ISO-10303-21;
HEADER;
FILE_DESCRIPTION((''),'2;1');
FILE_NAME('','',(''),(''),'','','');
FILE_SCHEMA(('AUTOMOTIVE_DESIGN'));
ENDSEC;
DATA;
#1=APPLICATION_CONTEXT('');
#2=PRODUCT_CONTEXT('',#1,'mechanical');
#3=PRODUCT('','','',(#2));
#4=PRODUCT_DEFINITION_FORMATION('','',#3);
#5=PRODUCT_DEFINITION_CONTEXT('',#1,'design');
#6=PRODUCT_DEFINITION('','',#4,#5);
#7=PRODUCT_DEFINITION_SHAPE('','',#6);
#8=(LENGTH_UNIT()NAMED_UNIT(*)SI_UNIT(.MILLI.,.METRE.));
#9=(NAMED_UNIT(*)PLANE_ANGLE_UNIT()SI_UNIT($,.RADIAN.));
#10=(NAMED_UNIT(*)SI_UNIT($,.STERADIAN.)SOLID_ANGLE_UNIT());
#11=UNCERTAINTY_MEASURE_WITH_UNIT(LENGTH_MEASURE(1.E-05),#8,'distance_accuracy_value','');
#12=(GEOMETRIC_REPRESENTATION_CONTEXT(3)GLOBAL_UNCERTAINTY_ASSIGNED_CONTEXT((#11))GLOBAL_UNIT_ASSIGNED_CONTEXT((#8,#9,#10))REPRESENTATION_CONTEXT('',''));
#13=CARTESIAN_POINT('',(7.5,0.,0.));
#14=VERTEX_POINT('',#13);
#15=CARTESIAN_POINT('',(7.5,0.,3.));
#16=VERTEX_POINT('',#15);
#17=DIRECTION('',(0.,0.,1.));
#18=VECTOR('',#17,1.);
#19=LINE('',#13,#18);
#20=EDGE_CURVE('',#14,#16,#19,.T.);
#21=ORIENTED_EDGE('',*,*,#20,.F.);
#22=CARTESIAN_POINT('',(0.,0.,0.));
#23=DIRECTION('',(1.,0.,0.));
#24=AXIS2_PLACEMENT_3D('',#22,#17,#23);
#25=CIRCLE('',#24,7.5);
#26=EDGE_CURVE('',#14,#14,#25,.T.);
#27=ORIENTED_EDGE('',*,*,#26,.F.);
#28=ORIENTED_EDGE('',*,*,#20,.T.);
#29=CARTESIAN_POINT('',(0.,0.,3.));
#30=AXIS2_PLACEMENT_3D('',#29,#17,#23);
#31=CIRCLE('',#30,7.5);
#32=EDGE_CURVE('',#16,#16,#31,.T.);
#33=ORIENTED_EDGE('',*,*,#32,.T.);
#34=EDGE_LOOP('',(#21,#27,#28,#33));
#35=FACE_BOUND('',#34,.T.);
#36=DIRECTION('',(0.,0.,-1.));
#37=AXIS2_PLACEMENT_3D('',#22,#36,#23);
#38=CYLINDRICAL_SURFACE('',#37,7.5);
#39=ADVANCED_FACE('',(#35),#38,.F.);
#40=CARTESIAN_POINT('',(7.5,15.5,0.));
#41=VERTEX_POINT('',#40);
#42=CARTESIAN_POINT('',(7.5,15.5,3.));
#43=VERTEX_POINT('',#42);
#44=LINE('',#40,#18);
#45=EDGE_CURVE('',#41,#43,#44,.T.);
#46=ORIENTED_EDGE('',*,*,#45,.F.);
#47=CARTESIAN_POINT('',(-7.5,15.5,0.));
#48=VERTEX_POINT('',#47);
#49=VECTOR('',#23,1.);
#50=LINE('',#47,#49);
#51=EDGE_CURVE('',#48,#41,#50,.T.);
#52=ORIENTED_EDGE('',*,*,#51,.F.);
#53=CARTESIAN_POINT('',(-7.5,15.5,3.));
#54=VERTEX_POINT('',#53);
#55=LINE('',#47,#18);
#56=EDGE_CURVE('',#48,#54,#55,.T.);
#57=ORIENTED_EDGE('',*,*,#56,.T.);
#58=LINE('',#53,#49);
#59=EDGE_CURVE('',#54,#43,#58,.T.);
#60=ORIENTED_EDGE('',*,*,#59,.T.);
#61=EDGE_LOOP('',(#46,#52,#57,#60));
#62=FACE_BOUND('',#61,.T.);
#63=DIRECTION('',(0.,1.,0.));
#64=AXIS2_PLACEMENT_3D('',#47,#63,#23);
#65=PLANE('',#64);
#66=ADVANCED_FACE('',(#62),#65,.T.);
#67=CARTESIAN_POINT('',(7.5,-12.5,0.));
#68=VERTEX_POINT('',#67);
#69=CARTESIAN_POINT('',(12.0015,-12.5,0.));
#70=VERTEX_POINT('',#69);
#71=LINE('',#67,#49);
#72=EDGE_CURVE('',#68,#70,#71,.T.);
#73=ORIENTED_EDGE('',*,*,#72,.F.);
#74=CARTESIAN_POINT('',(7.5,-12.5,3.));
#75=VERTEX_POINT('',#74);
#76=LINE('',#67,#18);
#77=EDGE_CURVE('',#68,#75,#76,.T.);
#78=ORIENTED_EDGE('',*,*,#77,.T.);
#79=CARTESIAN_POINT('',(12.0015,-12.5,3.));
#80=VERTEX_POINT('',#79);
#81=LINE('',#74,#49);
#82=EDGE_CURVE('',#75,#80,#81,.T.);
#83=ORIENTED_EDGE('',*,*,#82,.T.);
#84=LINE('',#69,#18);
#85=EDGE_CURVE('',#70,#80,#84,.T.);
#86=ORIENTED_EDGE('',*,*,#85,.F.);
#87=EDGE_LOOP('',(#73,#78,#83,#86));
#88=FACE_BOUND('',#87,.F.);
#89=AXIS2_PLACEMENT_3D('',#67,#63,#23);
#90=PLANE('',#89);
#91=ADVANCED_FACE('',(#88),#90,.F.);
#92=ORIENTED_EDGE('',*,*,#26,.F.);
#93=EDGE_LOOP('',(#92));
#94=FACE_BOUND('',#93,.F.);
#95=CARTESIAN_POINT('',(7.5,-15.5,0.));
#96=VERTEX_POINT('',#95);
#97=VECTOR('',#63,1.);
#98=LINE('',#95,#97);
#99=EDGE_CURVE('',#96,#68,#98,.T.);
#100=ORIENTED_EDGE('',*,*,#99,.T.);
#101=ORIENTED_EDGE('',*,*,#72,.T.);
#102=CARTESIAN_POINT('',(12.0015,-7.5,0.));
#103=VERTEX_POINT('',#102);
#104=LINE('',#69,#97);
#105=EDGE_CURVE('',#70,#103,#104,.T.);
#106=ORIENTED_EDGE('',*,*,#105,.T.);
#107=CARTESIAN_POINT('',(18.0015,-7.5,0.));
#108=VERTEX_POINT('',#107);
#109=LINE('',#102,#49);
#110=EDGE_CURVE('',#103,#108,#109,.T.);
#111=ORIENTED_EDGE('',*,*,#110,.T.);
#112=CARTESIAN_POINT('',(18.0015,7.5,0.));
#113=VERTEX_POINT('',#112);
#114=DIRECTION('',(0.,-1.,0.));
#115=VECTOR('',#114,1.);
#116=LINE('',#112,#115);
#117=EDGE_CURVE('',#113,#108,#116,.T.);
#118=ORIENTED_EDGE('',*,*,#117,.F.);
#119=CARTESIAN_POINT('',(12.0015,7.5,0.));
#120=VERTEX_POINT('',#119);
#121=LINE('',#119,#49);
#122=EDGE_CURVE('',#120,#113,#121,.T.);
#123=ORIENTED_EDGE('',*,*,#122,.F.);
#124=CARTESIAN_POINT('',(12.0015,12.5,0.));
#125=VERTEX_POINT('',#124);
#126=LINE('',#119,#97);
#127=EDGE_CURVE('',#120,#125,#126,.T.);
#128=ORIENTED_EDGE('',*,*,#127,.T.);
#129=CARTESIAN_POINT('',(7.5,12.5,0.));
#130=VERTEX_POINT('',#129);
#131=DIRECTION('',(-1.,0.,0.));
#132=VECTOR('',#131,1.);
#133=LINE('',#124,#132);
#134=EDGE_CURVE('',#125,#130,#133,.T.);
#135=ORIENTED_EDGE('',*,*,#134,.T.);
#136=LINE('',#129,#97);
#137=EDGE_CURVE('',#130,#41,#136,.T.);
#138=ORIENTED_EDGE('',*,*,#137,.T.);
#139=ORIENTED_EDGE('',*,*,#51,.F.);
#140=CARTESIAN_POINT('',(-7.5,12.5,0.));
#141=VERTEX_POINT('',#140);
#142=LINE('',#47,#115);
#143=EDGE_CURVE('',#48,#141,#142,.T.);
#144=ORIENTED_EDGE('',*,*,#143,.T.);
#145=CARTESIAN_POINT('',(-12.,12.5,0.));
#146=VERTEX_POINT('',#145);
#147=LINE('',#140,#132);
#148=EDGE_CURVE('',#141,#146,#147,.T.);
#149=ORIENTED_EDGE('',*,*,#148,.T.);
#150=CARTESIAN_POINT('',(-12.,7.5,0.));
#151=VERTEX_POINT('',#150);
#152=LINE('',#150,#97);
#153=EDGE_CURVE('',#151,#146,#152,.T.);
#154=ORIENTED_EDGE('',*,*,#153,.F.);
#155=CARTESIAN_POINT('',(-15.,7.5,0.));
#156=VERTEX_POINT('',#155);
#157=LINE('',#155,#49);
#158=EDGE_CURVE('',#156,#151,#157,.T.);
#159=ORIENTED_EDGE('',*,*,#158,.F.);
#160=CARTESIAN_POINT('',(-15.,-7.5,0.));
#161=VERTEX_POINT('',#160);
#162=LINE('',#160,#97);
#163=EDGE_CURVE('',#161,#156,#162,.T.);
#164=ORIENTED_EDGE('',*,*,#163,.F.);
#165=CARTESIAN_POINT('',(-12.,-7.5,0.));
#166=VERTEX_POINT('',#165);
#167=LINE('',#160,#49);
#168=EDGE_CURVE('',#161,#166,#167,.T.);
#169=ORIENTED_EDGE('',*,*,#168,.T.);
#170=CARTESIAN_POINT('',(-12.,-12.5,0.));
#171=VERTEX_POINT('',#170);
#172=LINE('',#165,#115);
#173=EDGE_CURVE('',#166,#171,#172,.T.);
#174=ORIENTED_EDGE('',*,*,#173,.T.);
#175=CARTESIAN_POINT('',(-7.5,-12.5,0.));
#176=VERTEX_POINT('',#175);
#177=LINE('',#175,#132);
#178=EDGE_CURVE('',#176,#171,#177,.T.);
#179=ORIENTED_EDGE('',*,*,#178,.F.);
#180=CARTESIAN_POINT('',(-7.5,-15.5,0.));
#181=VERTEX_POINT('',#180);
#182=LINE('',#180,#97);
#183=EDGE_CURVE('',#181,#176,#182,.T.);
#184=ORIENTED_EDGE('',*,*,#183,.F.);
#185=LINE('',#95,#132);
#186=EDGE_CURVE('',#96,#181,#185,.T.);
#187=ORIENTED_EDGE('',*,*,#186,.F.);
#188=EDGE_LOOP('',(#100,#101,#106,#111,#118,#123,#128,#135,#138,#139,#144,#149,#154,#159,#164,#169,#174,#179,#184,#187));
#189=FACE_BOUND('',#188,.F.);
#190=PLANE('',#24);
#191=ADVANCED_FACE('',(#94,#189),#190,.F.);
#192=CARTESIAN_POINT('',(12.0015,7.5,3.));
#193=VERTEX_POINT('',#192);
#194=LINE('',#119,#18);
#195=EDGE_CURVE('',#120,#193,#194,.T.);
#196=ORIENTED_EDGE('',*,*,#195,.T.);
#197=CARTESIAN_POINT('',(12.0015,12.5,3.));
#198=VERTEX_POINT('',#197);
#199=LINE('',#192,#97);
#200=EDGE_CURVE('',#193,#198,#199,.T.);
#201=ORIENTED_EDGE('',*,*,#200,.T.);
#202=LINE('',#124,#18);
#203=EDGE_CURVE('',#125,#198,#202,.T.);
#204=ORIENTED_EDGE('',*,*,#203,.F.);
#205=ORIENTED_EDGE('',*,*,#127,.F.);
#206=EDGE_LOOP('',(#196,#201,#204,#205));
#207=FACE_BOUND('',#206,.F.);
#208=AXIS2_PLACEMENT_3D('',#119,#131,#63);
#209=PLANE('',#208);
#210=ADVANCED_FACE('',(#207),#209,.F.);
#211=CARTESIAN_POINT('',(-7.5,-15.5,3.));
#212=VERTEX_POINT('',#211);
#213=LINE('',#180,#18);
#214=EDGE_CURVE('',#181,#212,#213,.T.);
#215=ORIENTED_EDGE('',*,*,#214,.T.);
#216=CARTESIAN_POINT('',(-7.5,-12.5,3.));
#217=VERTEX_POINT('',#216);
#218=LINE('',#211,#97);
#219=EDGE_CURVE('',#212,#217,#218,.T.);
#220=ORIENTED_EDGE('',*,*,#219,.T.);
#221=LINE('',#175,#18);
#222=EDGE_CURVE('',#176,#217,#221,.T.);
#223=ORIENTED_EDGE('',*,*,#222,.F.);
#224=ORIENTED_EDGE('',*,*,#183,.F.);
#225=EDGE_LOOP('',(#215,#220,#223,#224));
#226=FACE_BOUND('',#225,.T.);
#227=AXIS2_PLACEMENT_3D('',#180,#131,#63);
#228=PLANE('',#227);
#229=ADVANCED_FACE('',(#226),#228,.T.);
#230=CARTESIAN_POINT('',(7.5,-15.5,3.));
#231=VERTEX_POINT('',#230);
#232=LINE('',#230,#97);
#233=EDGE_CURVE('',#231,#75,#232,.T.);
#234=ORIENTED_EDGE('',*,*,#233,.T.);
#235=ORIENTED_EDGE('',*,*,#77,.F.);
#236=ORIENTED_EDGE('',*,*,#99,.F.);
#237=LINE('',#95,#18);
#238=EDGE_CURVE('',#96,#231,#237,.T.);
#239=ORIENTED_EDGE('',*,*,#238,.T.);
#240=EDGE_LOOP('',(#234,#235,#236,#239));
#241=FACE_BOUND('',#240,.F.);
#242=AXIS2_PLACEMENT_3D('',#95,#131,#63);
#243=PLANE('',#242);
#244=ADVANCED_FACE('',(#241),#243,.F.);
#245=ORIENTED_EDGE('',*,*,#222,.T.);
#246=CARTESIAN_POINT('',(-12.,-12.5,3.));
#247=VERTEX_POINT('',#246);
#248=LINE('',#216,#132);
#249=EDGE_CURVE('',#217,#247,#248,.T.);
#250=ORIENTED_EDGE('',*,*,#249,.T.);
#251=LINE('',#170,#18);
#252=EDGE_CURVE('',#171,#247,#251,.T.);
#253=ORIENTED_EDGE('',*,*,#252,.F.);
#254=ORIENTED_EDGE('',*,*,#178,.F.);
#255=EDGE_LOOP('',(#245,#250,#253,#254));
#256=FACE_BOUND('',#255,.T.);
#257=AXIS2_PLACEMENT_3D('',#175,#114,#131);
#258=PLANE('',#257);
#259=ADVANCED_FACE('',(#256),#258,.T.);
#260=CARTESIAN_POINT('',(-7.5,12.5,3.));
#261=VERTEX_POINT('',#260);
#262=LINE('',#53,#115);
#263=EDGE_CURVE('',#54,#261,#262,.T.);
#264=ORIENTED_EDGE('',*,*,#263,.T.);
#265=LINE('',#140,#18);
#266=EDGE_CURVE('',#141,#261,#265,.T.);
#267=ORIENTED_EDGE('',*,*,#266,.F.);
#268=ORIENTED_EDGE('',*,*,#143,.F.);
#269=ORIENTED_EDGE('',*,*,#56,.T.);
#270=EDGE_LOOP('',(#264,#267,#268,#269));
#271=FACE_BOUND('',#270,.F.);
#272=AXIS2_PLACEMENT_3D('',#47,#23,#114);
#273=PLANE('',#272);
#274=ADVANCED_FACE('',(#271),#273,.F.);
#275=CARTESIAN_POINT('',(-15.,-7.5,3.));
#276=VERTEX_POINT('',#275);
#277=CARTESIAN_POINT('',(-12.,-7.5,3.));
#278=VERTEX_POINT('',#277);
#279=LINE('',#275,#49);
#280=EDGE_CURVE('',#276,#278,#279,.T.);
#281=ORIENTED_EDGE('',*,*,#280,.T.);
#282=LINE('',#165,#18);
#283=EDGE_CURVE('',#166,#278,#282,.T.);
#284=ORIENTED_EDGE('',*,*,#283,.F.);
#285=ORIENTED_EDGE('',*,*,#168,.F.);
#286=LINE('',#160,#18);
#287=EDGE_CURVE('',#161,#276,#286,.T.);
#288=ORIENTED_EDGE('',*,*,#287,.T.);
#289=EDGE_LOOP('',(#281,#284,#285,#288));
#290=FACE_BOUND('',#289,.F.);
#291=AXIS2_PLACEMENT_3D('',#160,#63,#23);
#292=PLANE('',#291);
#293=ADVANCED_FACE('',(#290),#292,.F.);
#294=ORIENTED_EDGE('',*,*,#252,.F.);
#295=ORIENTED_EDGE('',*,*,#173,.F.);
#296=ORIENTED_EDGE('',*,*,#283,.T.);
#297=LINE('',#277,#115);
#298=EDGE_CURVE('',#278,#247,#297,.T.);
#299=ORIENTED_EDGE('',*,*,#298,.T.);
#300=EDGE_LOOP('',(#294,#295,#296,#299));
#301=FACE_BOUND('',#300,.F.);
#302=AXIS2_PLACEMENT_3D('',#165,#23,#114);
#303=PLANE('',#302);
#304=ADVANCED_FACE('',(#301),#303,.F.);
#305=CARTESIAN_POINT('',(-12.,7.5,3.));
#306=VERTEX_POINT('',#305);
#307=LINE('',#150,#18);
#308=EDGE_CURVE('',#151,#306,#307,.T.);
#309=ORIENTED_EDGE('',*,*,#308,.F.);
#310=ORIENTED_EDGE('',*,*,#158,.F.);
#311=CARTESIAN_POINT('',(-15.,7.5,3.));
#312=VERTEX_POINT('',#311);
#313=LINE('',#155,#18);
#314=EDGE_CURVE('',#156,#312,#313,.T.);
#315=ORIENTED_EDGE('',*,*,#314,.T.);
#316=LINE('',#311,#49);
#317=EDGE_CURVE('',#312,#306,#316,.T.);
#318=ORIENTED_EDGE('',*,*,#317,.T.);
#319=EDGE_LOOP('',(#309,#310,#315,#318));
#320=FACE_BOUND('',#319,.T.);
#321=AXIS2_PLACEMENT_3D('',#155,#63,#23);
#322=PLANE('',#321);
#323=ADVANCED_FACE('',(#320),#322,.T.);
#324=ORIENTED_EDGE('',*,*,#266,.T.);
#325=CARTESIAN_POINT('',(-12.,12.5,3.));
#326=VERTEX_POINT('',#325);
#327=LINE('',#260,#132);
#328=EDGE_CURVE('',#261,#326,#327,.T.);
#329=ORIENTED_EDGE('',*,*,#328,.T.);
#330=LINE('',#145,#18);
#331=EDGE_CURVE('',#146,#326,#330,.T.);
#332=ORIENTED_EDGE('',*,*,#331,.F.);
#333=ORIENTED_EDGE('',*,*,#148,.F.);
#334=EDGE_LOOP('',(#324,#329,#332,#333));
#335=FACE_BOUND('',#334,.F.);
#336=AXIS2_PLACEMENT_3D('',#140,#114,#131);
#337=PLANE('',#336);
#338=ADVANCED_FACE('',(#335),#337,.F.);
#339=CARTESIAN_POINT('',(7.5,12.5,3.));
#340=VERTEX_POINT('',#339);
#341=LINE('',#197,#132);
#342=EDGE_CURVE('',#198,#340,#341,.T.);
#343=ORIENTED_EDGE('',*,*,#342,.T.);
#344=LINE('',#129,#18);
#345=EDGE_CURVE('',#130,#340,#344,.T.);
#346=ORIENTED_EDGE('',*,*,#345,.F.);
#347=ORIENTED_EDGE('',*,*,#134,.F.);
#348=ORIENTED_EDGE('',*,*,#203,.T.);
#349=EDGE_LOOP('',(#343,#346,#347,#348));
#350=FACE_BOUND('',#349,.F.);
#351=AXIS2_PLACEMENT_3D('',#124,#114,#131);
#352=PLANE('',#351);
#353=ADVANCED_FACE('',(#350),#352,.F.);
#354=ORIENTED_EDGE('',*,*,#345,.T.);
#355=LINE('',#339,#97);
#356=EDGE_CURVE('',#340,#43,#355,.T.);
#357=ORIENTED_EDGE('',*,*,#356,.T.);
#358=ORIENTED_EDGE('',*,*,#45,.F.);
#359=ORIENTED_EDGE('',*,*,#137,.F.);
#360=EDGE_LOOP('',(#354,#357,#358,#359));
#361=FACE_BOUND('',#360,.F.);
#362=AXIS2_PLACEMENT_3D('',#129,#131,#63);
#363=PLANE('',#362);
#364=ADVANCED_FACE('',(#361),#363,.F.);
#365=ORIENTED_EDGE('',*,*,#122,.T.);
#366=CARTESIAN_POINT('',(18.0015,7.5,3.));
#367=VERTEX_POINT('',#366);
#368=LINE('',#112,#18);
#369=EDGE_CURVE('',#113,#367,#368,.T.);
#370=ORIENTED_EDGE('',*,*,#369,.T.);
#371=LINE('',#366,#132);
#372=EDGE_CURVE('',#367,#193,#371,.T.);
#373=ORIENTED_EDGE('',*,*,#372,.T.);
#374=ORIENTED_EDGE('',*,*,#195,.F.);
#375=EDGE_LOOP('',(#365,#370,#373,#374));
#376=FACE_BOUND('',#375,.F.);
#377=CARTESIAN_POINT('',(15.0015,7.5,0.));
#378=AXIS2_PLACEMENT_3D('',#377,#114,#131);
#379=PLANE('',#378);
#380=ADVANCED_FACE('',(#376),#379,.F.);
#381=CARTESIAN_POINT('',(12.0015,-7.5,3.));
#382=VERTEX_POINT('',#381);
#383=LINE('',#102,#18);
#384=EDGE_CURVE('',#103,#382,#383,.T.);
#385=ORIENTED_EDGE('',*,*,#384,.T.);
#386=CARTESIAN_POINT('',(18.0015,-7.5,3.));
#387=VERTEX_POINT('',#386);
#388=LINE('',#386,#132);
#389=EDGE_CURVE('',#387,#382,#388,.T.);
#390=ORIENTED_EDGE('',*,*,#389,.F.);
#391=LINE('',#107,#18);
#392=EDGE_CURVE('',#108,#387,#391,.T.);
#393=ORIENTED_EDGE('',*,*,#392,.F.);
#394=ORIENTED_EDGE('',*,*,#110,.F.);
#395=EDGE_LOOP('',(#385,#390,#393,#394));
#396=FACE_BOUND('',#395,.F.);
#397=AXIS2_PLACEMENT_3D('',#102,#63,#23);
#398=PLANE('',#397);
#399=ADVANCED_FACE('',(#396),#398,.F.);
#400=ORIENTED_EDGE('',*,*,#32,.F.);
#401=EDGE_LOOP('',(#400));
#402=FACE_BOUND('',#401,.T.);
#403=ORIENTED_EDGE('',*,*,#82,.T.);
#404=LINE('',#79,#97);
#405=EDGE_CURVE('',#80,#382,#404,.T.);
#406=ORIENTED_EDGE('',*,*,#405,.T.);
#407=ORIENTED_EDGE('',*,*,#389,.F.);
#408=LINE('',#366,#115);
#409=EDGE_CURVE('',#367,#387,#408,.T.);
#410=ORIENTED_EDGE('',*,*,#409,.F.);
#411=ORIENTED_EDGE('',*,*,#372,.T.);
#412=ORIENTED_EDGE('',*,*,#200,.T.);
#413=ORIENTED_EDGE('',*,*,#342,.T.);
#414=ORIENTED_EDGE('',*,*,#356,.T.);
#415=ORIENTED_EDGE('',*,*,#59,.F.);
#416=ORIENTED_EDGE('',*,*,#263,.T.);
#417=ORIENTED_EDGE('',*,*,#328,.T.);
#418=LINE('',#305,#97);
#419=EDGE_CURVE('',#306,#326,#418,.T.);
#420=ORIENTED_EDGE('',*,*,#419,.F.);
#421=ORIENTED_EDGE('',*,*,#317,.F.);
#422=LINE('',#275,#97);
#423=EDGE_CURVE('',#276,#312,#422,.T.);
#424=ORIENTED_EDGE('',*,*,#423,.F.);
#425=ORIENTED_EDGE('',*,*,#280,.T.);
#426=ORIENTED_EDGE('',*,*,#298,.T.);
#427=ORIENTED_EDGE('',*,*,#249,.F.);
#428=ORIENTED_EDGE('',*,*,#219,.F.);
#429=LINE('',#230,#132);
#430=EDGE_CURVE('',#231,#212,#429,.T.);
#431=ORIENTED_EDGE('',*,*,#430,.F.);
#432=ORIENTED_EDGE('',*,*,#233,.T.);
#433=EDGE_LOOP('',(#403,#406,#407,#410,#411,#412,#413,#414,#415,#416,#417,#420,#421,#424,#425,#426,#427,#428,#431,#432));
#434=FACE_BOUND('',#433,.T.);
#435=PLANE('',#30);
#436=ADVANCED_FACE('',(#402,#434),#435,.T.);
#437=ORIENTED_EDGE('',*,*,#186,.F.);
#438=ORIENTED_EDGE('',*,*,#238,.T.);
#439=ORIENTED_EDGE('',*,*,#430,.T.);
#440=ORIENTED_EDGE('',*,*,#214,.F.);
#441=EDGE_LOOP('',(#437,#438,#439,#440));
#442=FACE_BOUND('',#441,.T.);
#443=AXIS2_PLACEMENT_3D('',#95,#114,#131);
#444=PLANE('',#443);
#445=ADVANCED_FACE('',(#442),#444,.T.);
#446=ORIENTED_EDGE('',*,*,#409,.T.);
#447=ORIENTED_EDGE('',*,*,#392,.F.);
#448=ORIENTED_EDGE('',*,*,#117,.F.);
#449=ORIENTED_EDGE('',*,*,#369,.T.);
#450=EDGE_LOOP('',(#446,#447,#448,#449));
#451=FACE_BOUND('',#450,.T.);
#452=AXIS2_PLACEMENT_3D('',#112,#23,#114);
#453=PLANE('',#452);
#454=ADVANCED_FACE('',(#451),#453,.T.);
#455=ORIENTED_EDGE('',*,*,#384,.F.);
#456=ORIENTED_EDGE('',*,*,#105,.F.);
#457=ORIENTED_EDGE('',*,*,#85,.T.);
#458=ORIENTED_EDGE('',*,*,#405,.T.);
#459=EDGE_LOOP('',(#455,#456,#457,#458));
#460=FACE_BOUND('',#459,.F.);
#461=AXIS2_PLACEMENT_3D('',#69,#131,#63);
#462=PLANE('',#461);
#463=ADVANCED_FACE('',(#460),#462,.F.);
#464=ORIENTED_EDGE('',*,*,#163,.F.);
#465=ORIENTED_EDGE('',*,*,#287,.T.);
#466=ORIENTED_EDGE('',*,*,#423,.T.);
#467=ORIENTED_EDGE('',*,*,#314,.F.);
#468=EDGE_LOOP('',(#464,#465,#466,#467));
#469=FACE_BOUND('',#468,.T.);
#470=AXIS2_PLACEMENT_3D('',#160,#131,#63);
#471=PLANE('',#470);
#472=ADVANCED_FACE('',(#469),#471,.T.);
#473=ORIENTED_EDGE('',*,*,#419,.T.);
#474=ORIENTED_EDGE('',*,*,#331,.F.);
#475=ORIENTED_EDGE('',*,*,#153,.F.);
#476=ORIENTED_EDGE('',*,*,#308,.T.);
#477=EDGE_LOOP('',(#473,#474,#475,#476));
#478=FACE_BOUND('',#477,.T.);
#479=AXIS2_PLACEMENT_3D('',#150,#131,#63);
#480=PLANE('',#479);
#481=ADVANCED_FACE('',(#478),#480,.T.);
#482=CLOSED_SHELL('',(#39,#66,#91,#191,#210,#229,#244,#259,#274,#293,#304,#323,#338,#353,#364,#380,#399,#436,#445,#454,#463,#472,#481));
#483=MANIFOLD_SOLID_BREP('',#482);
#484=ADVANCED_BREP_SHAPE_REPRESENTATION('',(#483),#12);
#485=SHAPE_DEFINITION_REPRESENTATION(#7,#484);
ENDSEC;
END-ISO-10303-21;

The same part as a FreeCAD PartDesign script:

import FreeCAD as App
import Part
import Sketcher

V = App.Vector
Q = App.Units.Quantity


def add_polygon(sketch, points):
    """Adds a closed chain of lines whose ends are joined by coincident constraints."""
    first, n = sketch.GeometryCount, len(points)
    for a, b in zip(points, points[1:] + points[:1]):
        sketch.addGeometry(Part.LineSegment(App.Vector(*a, 0), App.Vector(*b, 0)), False)
    for i in range(n):
        sketch.addConstraint(Sketcher.Constraint("Coincident", first + i, 2, first + (i + 1) % n, 1))

doc = App.newDocument("Part")
body = doc.addObject("PartDesign::Body", "Body")

sketch1 = doc.addObject("Sketcher::SketchObject", "Sketch")
body.addObject(sketch1)
sketch1.AttachmentSupport = (doc.XY_Plane, [""])
sketch1.MapMode = "FlatFace"
add_polygon(sketch1, [(12, -7.5), (18, -7.5), (18, 7.5), (12, 7.5), (12, 12.5), (7.5, 12.5), (7.5, 15.5), (-7.5, 15.5), (-7.5, 12.5), (-12, 12.5), (-12, 7.5), (-15, 7.5), (-15, -7.5), (-12, -7.5), (-12, -12.5), (-7.5, -12.5), (-7.5, -15.5), (7.5, -15.5), (7.5, -12.5), (12, -12.5)])
sketch1.addGeometry(Part.Circle(V(0, 0, 0), V(0, 0, 1), 7.5), False)
sketch1.addConstraint([
    Sketcher.Constraint("Horizontal", 0),
    Sketcher.Constraint("Vertical", 1),
    Sketcher.Constraint("Horizontal", 2),
    Sketcher.Constraint("Vertical", 3),
    Sketcher.Constraint("Horizontal", 4),
    Sketcher.Constraint("Vertical", 5),
    Sketcher.Constraint("Horizontal", 6),
    Sketcher.Constraint("Vertical", 7),
    Sketcher.Constraint("Horizontal", 8),
    Sketcher.Constraint("Vertical", 9),
    Sketcher.Constraint("Horizontal", 10),
    Sketcher.Constraint("Vertical", 11),
    Sketcher.Constraint("Horizontal", 12),
    Sketcher.Constraint("Vertical", 13),
    Sketcher.Constraint("Horizontal", 14),
    Sketcher.Constraint("Vertical", 15),
    Sketcher.Constraint("Horizontal", 16),
    Sketcher.Constraint("Vertical", 17),
    Sketcher.Constraint("Horizontal", 18),
    Sketcher.Constraint("Vertical", 19),
    Sketcher.Constraint("Coincident", 20, 3, -1, 1),
    Sketcher.Constraint("Symmetric", 4, 2, 14, 2, -1, 1),
    Sketcher.Constraint("Symmetric", 6, 2, 16, 2, -1, 1),
    Sketcher.Constraint("Symmetric", 4, 2, 7, 2, -2),
    Sketcher.Constraint("Symmetric", 9, 2, 12, 2, -1),
    Sketcher.Constraint("Symmetric", 3, 2, 18, 2, -1),
    Sketcher.Constraint("Horizontal", 2, 2, 9, 2),
    Sketcher.Constraint("Horizontal", 0, 2, 11, 2),
    Sketcher.Constraint("Equal", 16, 1),
    Sketcher.Constraint("Equal", 12, 5),
    Sketcher.Constraint("Diameter", 20, Q("15 mm")),
    Sketcher.Constraint("DistanceX", 6, 2, 6, 1, Q("15 mm")),
    Sketcher.Constraint("DistanceX", 10, 2, 10, 1, Q("3 mm")),
    Sketcher.Constraint("DistanceX", 10, 2, -1, 1, Q("15 mm")),
    Sketcher.Constraint("DistanceX", 0, 1, 0, 2, Q("6 mm")),
    Sketcher.Constraint("DistanceY", 3, 1, 3, 2, Q("5 mm")),
    Sketcher.Constraint("DistanceX", 4, 2, 4, 1, Q("4.5015 mm")),
])
pad1 = doc.addObject("PartDesign::Pad", "Pad")
body.addObject(pad1)
pad1.Profile = sketch1
pad1.Length = 3

doc.recompute()
